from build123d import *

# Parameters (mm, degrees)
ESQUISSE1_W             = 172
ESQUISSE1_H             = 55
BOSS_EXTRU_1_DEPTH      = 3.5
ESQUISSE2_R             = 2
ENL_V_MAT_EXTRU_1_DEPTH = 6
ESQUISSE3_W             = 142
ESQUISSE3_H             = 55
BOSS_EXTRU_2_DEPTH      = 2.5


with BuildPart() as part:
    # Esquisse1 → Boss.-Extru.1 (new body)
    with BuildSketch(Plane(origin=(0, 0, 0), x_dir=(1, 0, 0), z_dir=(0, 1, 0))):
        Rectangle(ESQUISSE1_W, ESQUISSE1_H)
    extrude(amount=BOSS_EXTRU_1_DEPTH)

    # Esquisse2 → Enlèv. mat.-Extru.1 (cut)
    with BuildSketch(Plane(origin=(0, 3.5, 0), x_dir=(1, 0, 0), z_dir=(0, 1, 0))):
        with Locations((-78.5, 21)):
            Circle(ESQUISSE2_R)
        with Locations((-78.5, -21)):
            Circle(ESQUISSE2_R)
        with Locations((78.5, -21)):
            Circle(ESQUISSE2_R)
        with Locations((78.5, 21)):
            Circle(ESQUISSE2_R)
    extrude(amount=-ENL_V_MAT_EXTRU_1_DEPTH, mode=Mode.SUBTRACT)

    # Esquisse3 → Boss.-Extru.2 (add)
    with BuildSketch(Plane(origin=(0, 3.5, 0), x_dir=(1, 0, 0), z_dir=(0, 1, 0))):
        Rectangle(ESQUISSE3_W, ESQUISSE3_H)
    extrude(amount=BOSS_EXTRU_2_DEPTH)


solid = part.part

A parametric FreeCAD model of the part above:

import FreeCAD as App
import Part
import Sketcher
from FreeCAD import Vector

doc = App.newDocument("Part")
body = doc.addObject("PartDesign::Body", "Body")

sketch1 = body.newObject("Sketcher::SketchObject", "Sketch")
sketch1.AttachmentSupport = (doc.getObject("XZ_Plane"), [""])
sketch1.MapMode = "FlatFace"
sketch1.addGeometry([
    Part.LineSegment(Vector(-86, -28, 0), Vector(-86, 28, 0)),
    Part.LineSegment(Vector(-86, 28, 0), Vector(86, 28, 0)),
    Part.LineSegment(Vector(86, 28, 0), Vector(86, -28, 0)),
    Part.LineSegment(Vector(86, -28, 0), Vector(-86, -28, 0)),
], False)
sketch1.addConstraint([
    Sketcher.Constraint("Coincident", 0, 2, 1, 1),
    Sketcher.Constraint("Coincident", 1, 2, 2, 1),
    Sketcher.Constraint("Coincident", 2, 2, 3, 1),
    Sketcher.Constraint("Coincident", 3, 2, 0, 1),
    Sketcher.Constraint("Vertical", 0),
    Sketcher.Constraint("Horizontal", 1),
    Sketcher.Constraint("Vertical", 2),
    Sketcher.Constraint("Horizontal", 3),
    Sketcher.Constraint("Symmetric", 0, 2, 2, 2, -1, 1),
    Sketcher.Constraint("DistanceX", 1, 1, 1, 2, 172.0),
    Sketcher.Constraint("DistanceY", 0, 1, 0, 2, 55.0),
])
pad1 = body.newObject("PartDesign::Pad", "Pad")
pad1.Profile = sketch1
pad1.Length = 3.5
pad1.Reversed = True

sketch2 = body.newObject("Sketcher::SketchObject", "Sketch001")
sketch2.AttachmentSupport = (doc.getObject("XZ_Plane"), [""])
sketch2.MapMode = "FlatFace"
sketch2.AttachmentOffset = App.Placement(Vector(0, 0, -3.5), App.Rotation())
sketch2.addGeometry([
    Part.Circle(Vector(-78.5, -21, 0), Vector(0, 0, 1), 2),
    Part.Circle(Vector(-78.5, 21, 0), Vector(0, 0, 1), 2),
    Part.Circle(Vector(78.5, 21, 0), Vector(0, 0, 1), 2),
    Part.Circle(Vector(78.5, -21, 0), Vector(0, 0, 1), 2),
], False)
sketch2.addConstraint([
    Sketcher.Constraint("Equal", 0, 1),
    Sketcher.Constraint("Equal", 1, 2),
    Sketcher.Constraint("Equal", 2, 3),
    Sketcher.Constraint("Symmetric", 0, 3, 2, 3, -1, 1),
    Sketcher.Constraint("Symmetric", 1, 3, 3, 3, -1, 1),
    Sketcher.Constraint("Symmetric", 1, 3, 2, 3, -2),
    Sketcher.Constraint("Diameter", 0, 4.0),
    Sketcher.Constraint("DistanceY", 0, 3, -1, 1, 21.0),
    Sketcher.Constraint("DistanceX", 1, 3, 2, 3, 157.0),
])
pocket1 = body.newObject("PartDesign::Pocket", "Pocket")
pocket1.Profile = sketch2
pocket1.Length = 6
pocket1.Reversed = True

sketch3 = body.newObject("Sketcher::SketchObject", "Sketch002")
sketch3.AttachmentSupport = (doc.getObject("XZ_Plane"), [""])
sketch3.MapMode = "FlatFace"
sketch3.AttachmentOffset = App.Placement(Vector(0, 0, -3.5), App.Rotation())
sketch3.addGeometry([
    Part.LineSegment(Vector(-71, -28, 0), Vector(-71, 28, 0)),
    Part.LineSegment(Vector(-71, 28, 0), Vector(71, 28, 0)),
    Part.LineSegment(Vector(71, 28, 0), Vector(71, -28, 0)),
    Part.LineSegment(Vector(71, -28, 0), Vector(-71, -28, 0)),
], False)
sketch3.addConstraint([
    Sketcher.Constraint("Coincident", 0, 2, 1, 1),
    Sketcher.Constraint("Coincident", 1, 2, 2, 1),
    Sketcher.Constraint("Coincident", 2, 2, 3, 1),
    Sketcher.Constraint("Coincident", 3, 2, 0, 1),
    Sketcher.Constraint("Vertical", 0),
    Sketcher.Constraint("Horizontal", 1),
    Sketcher.Constraint("Vertical", 2),
    Sketcher.Constraint("Horizontal", 3),
    Sketcher.Constraint("Symmetric", 0, 2, 2, 2, -1, 1),
    Sketcher.Constraint("DistanceX", 1, 1, 1, 2, 142.0),
    Sketcher.Constraint("DistanceY", 0, 1, 0, 2, 55.0),
])
pad2 = body.newObject("PartDesign::Pad", "Pad001")
pad2.Profile = sketch3
pad2.Length = 2.5
pad2.Reversed = True

doc.recompute()
